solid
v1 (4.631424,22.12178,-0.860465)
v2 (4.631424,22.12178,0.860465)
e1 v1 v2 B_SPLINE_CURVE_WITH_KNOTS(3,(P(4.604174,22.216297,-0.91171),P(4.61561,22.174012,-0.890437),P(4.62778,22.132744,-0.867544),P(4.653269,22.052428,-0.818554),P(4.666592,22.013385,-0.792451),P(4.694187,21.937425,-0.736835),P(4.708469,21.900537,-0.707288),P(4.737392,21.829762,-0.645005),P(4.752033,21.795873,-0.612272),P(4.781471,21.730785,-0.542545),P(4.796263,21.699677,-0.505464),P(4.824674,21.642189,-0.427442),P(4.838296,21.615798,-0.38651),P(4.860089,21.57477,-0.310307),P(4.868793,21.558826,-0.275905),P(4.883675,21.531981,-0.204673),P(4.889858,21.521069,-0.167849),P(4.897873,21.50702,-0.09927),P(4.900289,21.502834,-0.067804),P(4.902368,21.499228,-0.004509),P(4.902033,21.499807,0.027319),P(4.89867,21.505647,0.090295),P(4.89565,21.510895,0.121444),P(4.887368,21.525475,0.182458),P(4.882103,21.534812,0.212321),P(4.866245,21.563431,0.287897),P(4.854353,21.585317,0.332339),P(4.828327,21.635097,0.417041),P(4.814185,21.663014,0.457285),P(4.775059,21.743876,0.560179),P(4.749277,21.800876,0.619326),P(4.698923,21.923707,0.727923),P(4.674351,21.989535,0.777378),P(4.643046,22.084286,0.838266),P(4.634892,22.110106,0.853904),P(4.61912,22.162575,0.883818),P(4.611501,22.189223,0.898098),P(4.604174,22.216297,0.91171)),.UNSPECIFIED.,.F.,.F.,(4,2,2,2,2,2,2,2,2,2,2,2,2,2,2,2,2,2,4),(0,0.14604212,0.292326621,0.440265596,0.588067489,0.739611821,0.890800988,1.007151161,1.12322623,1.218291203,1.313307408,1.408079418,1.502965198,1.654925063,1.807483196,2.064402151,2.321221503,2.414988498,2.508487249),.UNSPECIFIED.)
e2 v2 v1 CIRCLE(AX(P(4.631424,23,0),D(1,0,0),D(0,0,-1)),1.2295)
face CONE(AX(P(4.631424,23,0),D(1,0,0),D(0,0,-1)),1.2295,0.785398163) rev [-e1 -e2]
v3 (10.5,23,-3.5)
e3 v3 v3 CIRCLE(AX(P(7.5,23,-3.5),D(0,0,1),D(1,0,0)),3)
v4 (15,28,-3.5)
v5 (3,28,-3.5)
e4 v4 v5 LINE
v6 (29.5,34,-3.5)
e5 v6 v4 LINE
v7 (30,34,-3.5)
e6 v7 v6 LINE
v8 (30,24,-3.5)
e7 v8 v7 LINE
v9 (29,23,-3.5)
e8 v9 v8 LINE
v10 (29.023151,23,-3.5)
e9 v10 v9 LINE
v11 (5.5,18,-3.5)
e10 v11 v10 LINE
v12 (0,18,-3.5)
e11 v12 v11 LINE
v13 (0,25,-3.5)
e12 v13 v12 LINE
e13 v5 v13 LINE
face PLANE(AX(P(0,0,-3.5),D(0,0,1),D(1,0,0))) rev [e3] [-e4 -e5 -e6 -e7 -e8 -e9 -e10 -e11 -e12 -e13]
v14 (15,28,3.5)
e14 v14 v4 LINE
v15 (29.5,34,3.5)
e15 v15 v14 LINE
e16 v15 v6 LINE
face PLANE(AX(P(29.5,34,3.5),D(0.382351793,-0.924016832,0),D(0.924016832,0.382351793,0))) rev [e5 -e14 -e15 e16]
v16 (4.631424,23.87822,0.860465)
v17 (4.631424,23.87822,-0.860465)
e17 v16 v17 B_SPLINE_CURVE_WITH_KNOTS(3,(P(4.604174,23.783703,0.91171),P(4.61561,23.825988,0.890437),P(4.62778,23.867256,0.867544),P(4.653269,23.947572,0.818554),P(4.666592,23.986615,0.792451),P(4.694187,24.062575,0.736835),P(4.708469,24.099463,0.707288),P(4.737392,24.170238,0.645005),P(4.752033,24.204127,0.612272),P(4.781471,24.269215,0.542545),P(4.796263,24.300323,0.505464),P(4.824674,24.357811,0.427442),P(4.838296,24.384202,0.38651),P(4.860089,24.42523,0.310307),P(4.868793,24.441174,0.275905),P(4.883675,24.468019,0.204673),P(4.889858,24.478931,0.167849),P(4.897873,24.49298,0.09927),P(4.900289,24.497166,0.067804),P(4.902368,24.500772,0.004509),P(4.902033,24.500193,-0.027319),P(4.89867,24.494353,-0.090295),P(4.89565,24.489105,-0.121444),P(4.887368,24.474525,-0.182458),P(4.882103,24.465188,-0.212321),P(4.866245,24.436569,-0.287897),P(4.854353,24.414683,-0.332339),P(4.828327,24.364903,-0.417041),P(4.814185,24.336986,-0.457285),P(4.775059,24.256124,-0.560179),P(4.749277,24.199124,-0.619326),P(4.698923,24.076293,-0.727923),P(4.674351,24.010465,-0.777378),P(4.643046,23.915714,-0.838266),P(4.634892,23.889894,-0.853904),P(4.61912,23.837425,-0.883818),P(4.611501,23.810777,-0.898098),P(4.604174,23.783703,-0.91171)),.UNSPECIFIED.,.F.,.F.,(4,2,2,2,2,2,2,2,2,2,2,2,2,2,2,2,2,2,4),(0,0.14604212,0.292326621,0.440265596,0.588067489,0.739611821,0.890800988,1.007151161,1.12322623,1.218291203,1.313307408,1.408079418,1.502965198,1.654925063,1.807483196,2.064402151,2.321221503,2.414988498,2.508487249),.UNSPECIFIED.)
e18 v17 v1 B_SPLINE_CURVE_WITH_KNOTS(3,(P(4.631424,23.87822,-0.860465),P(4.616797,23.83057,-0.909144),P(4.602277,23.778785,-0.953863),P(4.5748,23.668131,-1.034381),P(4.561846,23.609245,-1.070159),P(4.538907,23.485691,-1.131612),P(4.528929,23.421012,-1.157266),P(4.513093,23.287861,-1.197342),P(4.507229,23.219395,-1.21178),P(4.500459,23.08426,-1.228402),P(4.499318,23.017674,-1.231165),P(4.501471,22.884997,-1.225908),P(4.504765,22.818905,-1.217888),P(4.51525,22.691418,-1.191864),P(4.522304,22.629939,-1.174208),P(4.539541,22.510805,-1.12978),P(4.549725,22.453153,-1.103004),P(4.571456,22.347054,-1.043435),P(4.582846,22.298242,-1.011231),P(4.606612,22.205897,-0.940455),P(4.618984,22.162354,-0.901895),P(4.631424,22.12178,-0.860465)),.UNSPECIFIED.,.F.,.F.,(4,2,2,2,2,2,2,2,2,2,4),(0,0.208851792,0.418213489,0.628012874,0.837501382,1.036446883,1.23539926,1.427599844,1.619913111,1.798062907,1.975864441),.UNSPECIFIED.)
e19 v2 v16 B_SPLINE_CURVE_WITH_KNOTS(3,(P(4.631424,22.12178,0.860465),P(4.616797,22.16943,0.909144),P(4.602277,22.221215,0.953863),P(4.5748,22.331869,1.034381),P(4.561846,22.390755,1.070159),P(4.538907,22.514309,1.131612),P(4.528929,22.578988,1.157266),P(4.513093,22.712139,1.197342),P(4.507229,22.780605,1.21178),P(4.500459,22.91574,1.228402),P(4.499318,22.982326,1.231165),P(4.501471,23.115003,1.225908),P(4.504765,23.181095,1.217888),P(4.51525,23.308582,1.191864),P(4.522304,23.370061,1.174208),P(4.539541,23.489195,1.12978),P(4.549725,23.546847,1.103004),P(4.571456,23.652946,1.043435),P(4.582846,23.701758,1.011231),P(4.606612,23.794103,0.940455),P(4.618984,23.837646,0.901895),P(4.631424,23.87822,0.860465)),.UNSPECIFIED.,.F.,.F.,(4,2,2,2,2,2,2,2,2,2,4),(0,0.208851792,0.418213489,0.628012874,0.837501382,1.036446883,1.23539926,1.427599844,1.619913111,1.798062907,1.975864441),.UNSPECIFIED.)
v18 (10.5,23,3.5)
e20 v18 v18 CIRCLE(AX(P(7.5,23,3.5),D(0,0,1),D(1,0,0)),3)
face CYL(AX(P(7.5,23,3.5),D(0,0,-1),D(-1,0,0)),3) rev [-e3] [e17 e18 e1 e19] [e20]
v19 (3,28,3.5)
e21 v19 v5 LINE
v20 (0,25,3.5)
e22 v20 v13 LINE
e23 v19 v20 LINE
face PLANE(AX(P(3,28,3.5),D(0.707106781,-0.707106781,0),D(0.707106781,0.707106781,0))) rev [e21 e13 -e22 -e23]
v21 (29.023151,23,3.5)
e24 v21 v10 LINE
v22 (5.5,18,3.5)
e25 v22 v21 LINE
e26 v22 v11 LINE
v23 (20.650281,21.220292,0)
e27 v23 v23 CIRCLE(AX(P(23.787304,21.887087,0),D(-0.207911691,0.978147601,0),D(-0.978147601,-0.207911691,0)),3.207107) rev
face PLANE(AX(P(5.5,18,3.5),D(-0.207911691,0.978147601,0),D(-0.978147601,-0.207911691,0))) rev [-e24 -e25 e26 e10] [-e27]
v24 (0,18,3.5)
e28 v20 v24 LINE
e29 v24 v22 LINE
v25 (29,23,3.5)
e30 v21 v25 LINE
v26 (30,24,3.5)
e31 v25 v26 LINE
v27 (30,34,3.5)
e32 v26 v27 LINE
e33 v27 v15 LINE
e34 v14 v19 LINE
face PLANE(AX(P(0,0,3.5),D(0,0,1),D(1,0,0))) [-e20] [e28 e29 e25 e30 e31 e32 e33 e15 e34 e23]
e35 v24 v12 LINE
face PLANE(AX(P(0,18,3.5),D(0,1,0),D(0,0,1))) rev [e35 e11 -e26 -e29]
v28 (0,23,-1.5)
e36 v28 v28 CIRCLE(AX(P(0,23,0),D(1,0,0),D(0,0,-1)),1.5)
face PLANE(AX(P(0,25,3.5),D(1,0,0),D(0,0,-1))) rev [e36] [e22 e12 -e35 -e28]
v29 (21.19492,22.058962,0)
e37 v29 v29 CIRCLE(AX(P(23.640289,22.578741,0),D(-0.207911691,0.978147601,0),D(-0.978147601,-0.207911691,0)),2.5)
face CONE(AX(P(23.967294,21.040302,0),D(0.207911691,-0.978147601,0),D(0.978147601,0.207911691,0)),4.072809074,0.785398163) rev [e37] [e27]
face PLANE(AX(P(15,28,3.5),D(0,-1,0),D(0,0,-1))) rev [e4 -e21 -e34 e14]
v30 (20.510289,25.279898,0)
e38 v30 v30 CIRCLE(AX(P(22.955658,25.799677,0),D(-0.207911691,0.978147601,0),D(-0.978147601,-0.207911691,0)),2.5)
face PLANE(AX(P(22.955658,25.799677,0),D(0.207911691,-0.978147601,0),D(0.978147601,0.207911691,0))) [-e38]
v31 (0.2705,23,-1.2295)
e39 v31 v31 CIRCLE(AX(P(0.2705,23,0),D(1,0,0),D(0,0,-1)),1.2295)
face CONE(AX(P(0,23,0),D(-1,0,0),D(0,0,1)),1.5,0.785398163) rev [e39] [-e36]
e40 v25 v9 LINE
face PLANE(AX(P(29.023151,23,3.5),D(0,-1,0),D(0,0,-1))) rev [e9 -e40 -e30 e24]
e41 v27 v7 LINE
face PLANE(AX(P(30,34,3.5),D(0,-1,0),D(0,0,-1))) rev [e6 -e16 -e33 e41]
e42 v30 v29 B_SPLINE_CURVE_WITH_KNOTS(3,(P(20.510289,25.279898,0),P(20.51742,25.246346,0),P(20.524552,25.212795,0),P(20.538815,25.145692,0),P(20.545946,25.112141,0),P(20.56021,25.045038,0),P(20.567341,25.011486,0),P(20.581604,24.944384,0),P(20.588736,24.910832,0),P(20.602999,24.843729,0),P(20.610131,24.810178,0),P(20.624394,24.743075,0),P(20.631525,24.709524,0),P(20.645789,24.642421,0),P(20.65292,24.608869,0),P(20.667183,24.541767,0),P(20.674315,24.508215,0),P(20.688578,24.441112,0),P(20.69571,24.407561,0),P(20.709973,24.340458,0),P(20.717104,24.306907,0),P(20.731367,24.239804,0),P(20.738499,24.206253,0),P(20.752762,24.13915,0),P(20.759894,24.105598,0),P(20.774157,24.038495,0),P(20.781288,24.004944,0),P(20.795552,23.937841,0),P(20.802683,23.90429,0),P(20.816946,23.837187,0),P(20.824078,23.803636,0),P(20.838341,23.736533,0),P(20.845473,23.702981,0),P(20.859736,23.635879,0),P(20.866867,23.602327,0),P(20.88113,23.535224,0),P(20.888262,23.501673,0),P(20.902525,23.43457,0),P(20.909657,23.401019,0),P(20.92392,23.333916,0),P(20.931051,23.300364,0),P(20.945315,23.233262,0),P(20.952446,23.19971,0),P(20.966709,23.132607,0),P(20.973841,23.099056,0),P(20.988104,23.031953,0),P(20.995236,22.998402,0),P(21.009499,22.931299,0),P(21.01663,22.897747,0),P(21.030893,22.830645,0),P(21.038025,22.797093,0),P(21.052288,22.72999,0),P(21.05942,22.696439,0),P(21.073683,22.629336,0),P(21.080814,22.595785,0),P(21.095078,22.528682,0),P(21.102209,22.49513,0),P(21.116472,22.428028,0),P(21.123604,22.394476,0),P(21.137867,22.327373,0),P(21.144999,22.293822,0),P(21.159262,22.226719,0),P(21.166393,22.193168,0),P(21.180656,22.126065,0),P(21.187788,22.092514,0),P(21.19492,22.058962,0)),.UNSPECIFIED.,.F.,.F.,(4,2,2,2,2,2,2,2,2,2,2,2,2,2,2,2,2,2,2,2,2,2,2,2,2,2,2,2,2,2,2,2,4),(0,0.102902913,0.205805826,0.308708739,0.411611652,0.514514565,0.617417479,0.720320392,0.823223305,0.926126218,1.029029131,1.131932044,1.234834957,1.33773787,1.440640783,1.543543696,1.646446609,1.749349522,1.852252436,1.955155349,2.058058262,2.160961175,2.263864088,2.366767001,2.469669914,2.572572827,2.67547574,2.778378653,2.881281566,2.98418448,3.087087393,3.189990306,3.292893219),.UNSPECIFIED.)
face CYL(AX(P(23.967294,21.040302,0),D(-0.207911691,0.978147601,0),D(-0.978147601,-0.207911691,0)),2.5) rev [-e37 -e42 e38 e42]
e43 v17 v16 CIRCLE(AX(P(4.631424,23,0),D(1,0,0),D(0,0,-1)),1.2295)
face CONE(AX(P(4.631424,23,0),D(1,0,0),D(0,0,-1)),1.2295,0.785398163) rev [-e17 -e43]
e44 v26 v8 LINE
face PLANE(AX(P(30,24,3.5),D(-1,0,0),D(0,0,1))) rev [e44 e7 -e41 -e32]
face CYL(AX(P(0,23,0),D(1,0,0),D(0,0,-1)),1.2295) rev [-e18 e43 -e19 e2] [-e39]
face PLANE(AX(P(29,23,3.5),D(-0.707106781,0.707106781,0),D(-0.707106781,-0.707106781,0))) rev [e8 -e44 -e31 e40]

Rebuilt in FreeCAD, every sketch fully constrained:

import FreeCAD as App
import Part
import Sketcher
from FreeCAD import Vector
Q = App.Units.Quantity

doc = App.newDocument("Part")
params = doc.addObject("Spreadsheet::Sheet", "Params")
for row, (alias, value) in enumerate([
    ("sketch1_width", "12 mm"),
    ("sketch1_height", "7 mm"),
    ("sketch1_height2", "10 mm"),
    ("sketch1_width2", "5.5 mm"),
    ("sketch1_width3", "0.5 mm"),
    ("pad1_length", "3.5 mm"),
    ("pad1_length2", "3.5 mm"),
    ("sketch2_diameter", "6 mm"),
    ("sketch3_height", "1.5 mm"),
    ("groove_angle", "360 deg"),
    ("sketch4_length", "2.5 mm"),
    ("groove2_angle", "360 deg"),
], start=1):
    params.set(f"A{row}", alias)
    params.set(f"B{row}", "=" + value)
    params.setAlias(f"B{row}", alias)

body = doc.addObject("PartDesign::Body", "Body")

sketch1 = body.newObject("Sketcher::SketchObject", "Sketch")
sketch1.AttachmentSupport = (doc.getObject("XY_Plane"), [""])
sketch1.MapMode = "FlatFace"
sketch1.addGeometry(Part.LineSegment(Vector(0, 25, 0), Vector(0, 18, 0)), False)
sketch1.addGeometry(Part.LineSegment(Vector(0, 18, 0), Vector(5.5, 18, 0)), False)
sketch1.addGeometry(Part.LineSegment(Vector(5.5, 18, 0), Vector(29.023, 23, 0)), False)
sketch1.addGeometry(Part.LineSegment(Vector(29.023, 23, 0), Vector(29, 23, 0)), False)
sketch1.addGeometry(Part.LineSegment(Vector(29, 23, 0), Vector(30, 24, 0)), False)
sketch1.addGeometry(Part.LineSegment(Vector(30, 24, 0), Vector(30, 34, 0)), False)
sketch1.addGeometry(Part.LineSegment(Vector(30, 34, 0), Vector(29.5, 34, 0)), False)
sketch1.addGeometry(Part.LineSegment(Vector(29.5, 34, 0), Vector(15, 28, 0)), False)
sketch1.addGeometry(Part.LineSegment(Vector(15, 28, 0), Vector(3, 28, 0)), False)
sketch1.addGeometry(Part.LineSegment(Vector(3, 28, 0), Vector(0, 25, 0)), False)
sketch1.addConstraint(Sketcher.Constraint("Coincident", 0, 2, 1, 1))
sketch1.addConstraint(Sketcher.Constraint("Coincident", 1, 2, 2, 1))
sketch1.addConstraint(Sketcher.Constraint("Coincident", 2, 2, 3, 1))
sketch1.addConstraint(Sketcher.Constraint("Coincident", 3, 2, 4, 1))
sketch1.addConstraint(Sketcher.Constraint("Coincident", 4, 2, 5, 1))
sketch1.addConstraint(Sketcher.Constraint("Coincident", 5, 2, 6, 1))
sketch1.addConstraint(Sketcher.Constraint("Coincident", 6, 2, 7, 1))
sketch1.addConstraint(Sketcher.Constraint("Coincident", 7, 2, 8, 1))
sketch1.addConstraint(Sketcher.Constraint("Coincident", 8, 2, 9, 1))
sketch1.addConstraint(Sketcher.Constraint("Coincident", 9, 2, 0, 1))
sketch1.addConstraint(Sketcher.Constraint("Vertical", 0))
sketch1.addConstraint(Sketcher.Constraint("Horizontal", 1))
sketch1.addConstraint(Sketcher.Constraint("Horizontal", 3))
sketch1.addConstraint(Sketcher.Constraint("Vertical", 5))
sketch1.addConstraint(Sketcher.Constraint("Horizontal", 6))
sketch1.addConstraint(Sketcher.Constraint("Horizontal", 8))
sketch1.addConstraint(Sketcher.Constraint("PointOnObject", 0, 2, -2))
sketch1.addConstraint(Sketcher.Constraint("Parallel", 4, 9))
sketch1.addConstraint(Sketcher.Constraint("DistanceX", 8, 2, 8, 1, 12.0))
sketch1.addConstraint(Sketcher.Constraint("DistanceY", 0, 2, 0, 1, 7.0))
sketch1.addConstraint(Sketcher.Constraint("DistanceY", 5, 1, 5, 2, 10.0))
sketch1.addConstraint(Sketcher.Constraint("Angle", 2, Q("12 deg")))
sketch1.addConstraint(Sketcher.Constraint("Angle", 4, Q("45 deg")))
sketch1.addConstraint(Sketcher.Constraint("DistanceX", 1, 1, 1, 2, 5.5))
sketch1.addConstraint(Sketcher.Constraint("DistanceX", 6, 2, 6, 1, 0.5))
sketch1.addConstraint(Sketcher.Constraint("DistanceY", -1, 1, 0, 2, 18.0))
sketch1.addConstraint(Sketcher.Constraint("DistanceY", -1, 1, 2, 2, 23.0))
sketch1.addConstraint(Sketcher.Constraint("DistanceX", -1, 1, 3, 2, 29.0))
sketch1.addConstraint(Sketcher.Constraint("DistanceX", -1, 1, 4, 2, 30.0))
sketch1.addConstraint(Sketcher.Constraint("DistanceX", -1, 1, 7, 2, 15.0))
sketch1.setExpression("Constraints[18]", "Params.sketch1_width")
sketch1.setExpression("Constraints[19]", "Params.sketch1_height")
sketch1.setExpression("Constraints[20]", "Params.sketch1_height2")
sketch1.setExpression("Constraints[23]", "Params.sketch1_width2")
sketch1.setExpression("Constraints[24]", "Params.sketch1_width3")
pad1 = body.newObject("PartDesign::Pad", "Pad")
pad1.Profile = sketch1
pad1.Type = "TwoLengths"
pad1.setExpression("Length", "Params.pad1_length")
pad1.setExpression("Length2", "Params.pad1_length2")

sketch2 = body.newObject("Sketcher::SketchObject", "Sketch001")
sketch2.AttachmentSupport = (doc.getObject("XY_Plane"), [""])
sketch2.MapMode = "FlatFace"
sketch2.addGeometry(Part.Circle(Vector(7.5, 23, 0), Vector(0, 0, 1), 3), False)
sketch2.addConstraint(Sketcher.Constraint("Diameter", 0, 6.0))
sketch2.addConstraint(Sketcher.Constraint("DistanceY", -1, 1, 0, 3, 23.0))
sketch2.addConstraint(Sketcher.Constraint("DistanceX", -1, 1, 0, 3, 7.5))
sketch2.setExpression("Constraints[0]", "Params.sketch2_diameter")
pocket1 = body.newObject("PartDesign::Pocket", "Pocket")
pocket1.Profile = sketch2
pocket1.Type = "ThroughAll"
pocket1.Midplane = True

sketch3 = body.newObject("Sketcher::SketchObject", "Sketch002")
sketch3.AttachmentSupport = (doc.getObject("XY_Plane"), [""])
sketch3.MapMode = "FlatFace"
sketch3.addGeometry(Part.LineSegment(Vector(4.9, 21.5, 0), Vector(4.9, 23, 0)), False)
sketch3.addGeometry(Part.LineSegment(Vector(4.9, 23, 0), Vector(0, 23, 0)), False)
sketch3.addGeometry(Part.LineSegment(Vector(0, 23, 0), Vector(0, 21.5, 0)), False)
sketch3.addGeometry(Part.LineSegment(Vector(0, 21.5, 0), Vector(0.27, 21.77, 0)), False)
sketch3.addGeometry(Part.LineSegment(Vector(0.27, 21.77, 0), Vector(4.63, 21.77, 0)), False)
sketch3.addGeometry(Part.LineSegment(Vector(4.63, 21.77, 0), Vector(4.9, 21.5, 0)), False)
sketch3.addGeometry(Part.LineSegment(Vector(0, 23, 0), Vector(4.9, 23, 0)), True)
sketch3.addConstraint(Sketcher.Constraint("Coincident", 0, 2, 1, 1))
sketch3.addConstraint(Sketcher.Constraint("Coincident", 1, 2, 2, 1))
sketch3.addConstraint(Sketcher.Constraint("Coincident", 2, 2, 3, 1))
sketch3.addConstraint(Sketcher.Constraint("Coincident", 3, 2, 4, 1))
sketch3.addConstraint(Sketcher.Constraint("Coincident", 4, 2, 5, 1))
sketch3.addConstraint(Sketcher.Constraint("Coincident", 5, 2, 0, 1))
sketch3.addConstraint(Sketcher.Constraint("Vertical", 0))
sketch3.addConstraint(Sketcher.Constraint("Horizontal", 1))
sketch3.addConstraint(Sketcher.Constraint("Vertical", 2))
sketch3.addConstraint(Sketcher.Constraint("Horizontal", 4))
sketch3.addConstraint(Sketcher.Constraint("Horizontal", 6))
sketch3.addConstraint(Sketcher.Constraint("Coincident", 6, 1, 1, 2))
sketch3.addConstraint(Sketcher.Constraint("PointOnObject", 1, 2, -2))
sketch3.addConstraint(Sketcher.Constraint("Perpendicular", 3, 5))
sketch3.addConstraint(Sketcher.Constraint("Horizontal", 2, 2, 5, 2))
sketch3.addConstraint(Sketcher.Constraint("Vertical", 5, 2, 6, 2))
sketch3.addConstraint(Sketcher.Constraint("Equal", 3, 5))
sketch3.addConstraint(Sketcher.Constraint("DistanceY", 0, 1, 0, 2, 1.5))
sketch3.addConstraint(Sketcher.Constraint("DistanceY", -1, 1, 0, 2, 23.0))
sketch3.addConstraint(Sketcher.Constraint("DistanceX", -1, 1, 3, 2, 0.2705))
sketch3.addConstraint(Sketcher.Constraint("DistanceX", 1, 2, 1, 1, 4.901924))
sketch3.setExpression("Constraints[17]", "Params.sketch3_height")
groove = body.newObject("PartDesign::Groove", "Groove")
groove.Profile = sketch3
groove.ReferenceAxis = (sketch3, ["Axis0"])
groove.setExpression("Angle", "Params.groove_angle")

sketch4 = body.newObject("Sketcher::SketchObject", "Sketch003")
sketch4.AttachmentSupport = (doc.getObject("XY_Plane"), [""])
sketch4.MapMode = "FlatFace"
sketch4.addGeometry(Part.LineSegment(Vector(25.4, 26.3, 0), Vector(23, 25.8, 0)), False)
sketch4.addGeometry(Part.LineSegment(Vector(23, 25.8, 0), Vector(24, 21, 0)), False)
sketch4.addGeometry(Part.LineSegment(Vector(24, 21, 0), Vector(28, 21.9, 0)), False)
sketch4.addGeometry(Part.LineSegment(Vector(28, 21.9, 0), Vector(26.1, 23.1, 0)), False)
sketch4.addGeometry(Part.LineSegment(Vector(26.1, 23.1, 0), Vector(25.4, 26.3, 0)), False)
sketch4.addGeometry(Part.LineSegment(Vector(24, 21, 0), Vector(23, 25.8, 0)), True)
sketch4.addConstraint(Sketcher.Constraint("Coincident", 0, 2, 1, 1))
sketch4.addConstraint(Sketcher.Constraint("Coincident", 1, 2, 2, 1))
sketch4.addConstraint(Sketcher.Constraint("Coincident", 2, 2, 3, 1))
sketch4.addConstraint(Sketcher.Constraint("Coincident", 3, 2, 4, 1))
sketch4.addConstraint(Sketcher.Constraint("Coincident", 4, 2, 0, 1))
sketch4.addConstraint(Sketcher.Constraint("Coincident", 5, 1, 1, 2))
sketch4.addConstraint(Sketcher.Constraint("Coincident", 5, 2, 0, 2))
sketch4.addConstraint(Sketcher.Constraint("Perpendicular", 0, 1))
sketch4.addConstraint(Sketcher.Constraint("Perpendicular", 1, 2))
sketch4.addConstraint(Sketcher.Constraint("Perpendicular", 2, 4))
sketch4.addConstraint(Sketcher.Constraint("Angle", 0, Q("-168 deg")))
sketch4.addConstraint(Sketcher.Constraint("Angle", 3, Q("147 deg")))
sketch4.addConstraint(Sketcher.Constraint("Distance", 0, 2.5))
sketch4.addConstraint(Sketcher.Constraint("DistanceX", 0, 2, 3, 2, 3.13))
sketch4.addConstraint(Sketcher.Constraint("DistanceY", -1, 1, 1, 2, 21.040302))
sketch4.addConstraint(Sketcher.Constraint("Distance", 2, 4.072809))
sketch4.addConstraint(Sketcher.Constraint("DistanceX", -1, 1, 0, 2, 22.955658))
sketch4.setExpression("Constraints[12]", "Params.sketch4_length")
groove2 = body.newObject("PartDesign::Groove", "Groove001")
groove2.Profile = sketch4
groove2.ReferenceAxis = (sketch4, ["Axis0"])
groove2.setExpression("Angle", "Params.groove2_angle")

doc.recompute()
